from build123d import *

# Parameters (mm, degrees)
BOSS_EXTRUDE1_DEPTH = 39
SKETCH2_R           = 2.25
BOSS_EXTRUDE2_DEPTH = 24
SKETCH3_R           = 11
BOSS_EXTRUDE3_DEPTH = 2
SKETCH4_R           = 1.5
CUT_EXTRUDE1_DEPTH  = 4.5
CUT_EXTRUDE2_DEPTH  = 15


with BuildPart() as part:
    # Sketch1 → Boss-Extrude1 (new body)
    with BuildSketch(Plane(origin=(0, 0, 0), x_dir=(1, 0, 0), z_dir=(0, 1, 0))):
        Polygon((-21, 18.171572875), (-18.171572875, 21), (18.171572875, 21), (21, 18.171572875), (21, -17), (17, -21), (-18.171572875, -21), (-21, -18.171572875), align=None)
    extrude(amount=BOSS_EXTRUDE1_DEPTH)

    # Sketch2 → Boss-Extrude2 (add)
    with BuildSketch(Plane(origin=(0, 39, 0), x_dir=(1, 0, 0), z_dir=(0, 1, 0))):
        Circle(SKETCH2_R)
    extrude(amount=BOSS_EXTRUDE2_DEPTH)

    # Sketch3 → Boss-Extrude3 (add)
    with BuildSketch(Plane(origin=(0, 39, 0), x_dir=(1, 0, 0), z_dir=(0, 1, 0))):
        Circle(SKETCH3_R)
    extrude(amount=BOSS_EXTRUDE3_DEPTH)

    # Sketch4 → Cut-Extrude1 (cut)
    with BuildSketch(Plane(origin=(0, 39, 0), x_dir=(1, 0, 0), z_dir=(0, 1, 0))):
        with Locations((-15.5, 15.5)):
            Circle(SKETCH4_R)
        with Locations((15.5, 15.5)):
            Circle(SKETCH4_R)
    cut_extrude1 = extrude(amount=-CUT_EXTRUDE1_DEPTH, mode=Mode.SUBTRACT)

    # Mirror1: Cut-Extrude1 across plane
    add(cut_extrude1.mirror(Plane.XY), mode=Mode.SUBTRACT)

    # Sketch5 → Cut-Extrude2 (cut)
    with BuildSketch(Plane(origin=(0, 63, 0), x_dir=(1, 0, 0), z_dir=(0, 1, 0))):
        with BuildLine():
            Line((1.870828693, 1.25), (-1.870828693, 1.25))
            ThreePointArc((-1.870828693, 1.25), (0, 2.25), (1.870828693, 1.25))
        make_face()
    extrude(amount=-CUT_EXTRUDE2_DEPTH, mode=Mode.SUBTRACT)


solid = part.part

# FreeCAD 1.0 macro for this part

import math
import FreeCAD as App
import Part
import Sketcher


def add_polygon(sketch, points):
    """Adds a closed chain of lines whose ends are joined by coincident constraints."""
    first, n = sketch.GeometryCount, len(points)
    for a, b in zip(points, points[1:] + points[:1]):
        sketch.addGeometry(Part.LineSegment(App.Vector(*a, 0), App.Vector(*b, 0)), False)
    for i in range(n):
        sketch.addConstraint(Sketcher.Constraint("Coincident", first + i, 2, first + (i + 1) % n, 1))

doc = App.newDocument("Part")
body = doc.addObject("PartDesign::Body", "Body")

sketch1 = doc.addObject("Sketcher::SketchObject", "Sketch")
body.addObject(sketch1)
sketch1.AttachmentSupport = (doc.XZ_Plane, [""])
sketch1.MapMode = "FlatFace"
add_polygon(sketch1, [(-18.2, -21), (-21, -18.2), (-21, 18.2), (-18.2, 21), (17, 21), (21, 17), (21, -18.2), (18.2, -21)])
sketch1.addConstraint(Sketcher.Constraint("Vertical", 1))
sketch1.addConstraint(Sketcher.Constraint("Horizontal", 3))
sketch1.addConstraint(Sketcher.Constraint("Vertical", 5))
sketch1.addConstraint(Sketcher.Constraint("Horizontal", 7))
sketch1.addConstraint(Sketcher.Constraint("Symmetric", 1, 2, 5, 2, -1, 1))
sketch1.addConstraint(Sketcher.Constraint("Symmetric", 2, 2, 6, 2, -1, 1))
sketch1.addConstraint(Sketcher.Constraint("Perpendicular", 0, 2))
sketch1.addConstraint(Sketcher.Constraint("Perpendicular", 2, 4))
sketch1.addConstraint(Sketcher.Constraint("Horizontal", 0, 2, 5, 2))
sketch1.addConstraint(Sketcher.Constraint("Vertical", 2, 2, 7, 2))
sketch1.addConstraint(Sketcher.Constraint("Equal", 7, 1))
sketch1.addConstraint(Sketcher.Constraint("Distance", 0, 4.0))
sketch1.addConstraint(Sketcher.Constraint("DistanceX", 0, 2, -1, 1, 21.0))
sketch1.addConstraint(Sketcher.Constraint("DistanceX", -1, 1, 3, 2, 17.0))
pad1 = doc.addObject("PartDesign::Pad", "Pad")
body.addObject(pad1)
pad1.Profile = sketch1
pad1.Length = 39
pad1.Reversed = True

sketch2 = doc.addObject("Sketcher::SketchObject", "Sketch001")
body.addObject(sketch2)
sketch2.AttachmentSupport = (doc.XZ_Plane, [""])
sketch2.MapMode = "FlatFace"
sketch2.AttachmentOffset = App.Placement(App.Vector(0, 0, -39), App.Rotation())
sketch2.addGeometry(Part.Circle(App.Vector(0, 0, 0), App.Vector(0, 0, 1), 2.2), False)
sketch2.addConstraint(Sketcher.Constraint("Coincident", 0, 3, -1, 1))
sketch2.addConstraint(Sketcher.Constraint("Diameter", 0, 4.5))
pad2 = doc.addObject("PartDesign::Pad", "Pad001")
body.addObject(pad2)
pad2.Profile = sketch2
pad2.Length = 24
pad2.Reversed = True

sketch3 = doc.addObject("Sketcher::SketchObject", "Sketch002")
body.addObject(sketch3)
sketch3.AttachmentSupport = (doc.XZ_Plane, [""])
sketch3.MapMode = "FlatFace"
sketch3.AttachmentOffset = App.Placement(App.Vector(0, 0, -39), App.Rotation())
sketch3.addGeometry(Part.Circle(App.Vector(0, 0, 0), App.Vector(0, 0, 1), 11), False)
sketch3.addConstraint(Sketcher.Constraint("Coincident", 0, 3, -1, 1))
sketch3.addConstraint(Sketcher.Constraint("Diameter", 0, 22.0))
pad3 = doc.addObject("PartDesign::Pad", "Pad002")
body.addObject(pad3)
pad3.Profile = sketch3
pad3.Length = 2
pad3.Reversed = True

sketch4 = doc.addObject("Sketcher::SketchObject", "Sketch003")
body.addObject(sketch4)
sketch4.AttachmentSupport = (doc.XZ_Plane, [""])
sketch4.MapMode = "FlatFace"
sketch4.AttachmentOffset = App.Placement(App.Vector(0, 0, -39), App.Rotation())
sketch4.addGeometry(Part.Circle(App.Vector(-15.5, -15.5, 0), App.Vector(0, 0, 1), 1.5), False)
sketch4.addGeometry(Part.Circle(App.Vector(15.5, -15.5, 0), App.Vector(0, 0, 1), 1.5), False)
sketch4.addConstraint(Sketcher.Constraint("Equal", 0, 1))
sketch4.addConstraint(Sketcher.Constraint("Symmetric", 0, 3, 1, 3, -2))
sketch4.addConstraint(Sketcher.Constraint("Diameter", 0, 3.0))
sketch4.addConstraint(Sketcher.Constraint("DistanceX", 0, 3, 1, 3, 31.0))
sketch4.addConstraint(Sketcher.Constraint("DistanceY", 0, 3, -1, 1, 15.5))
pocket1 = doc.addObject("PartDesign::Pocket", "Pocket")
body.addObject(pocket1)
pocket1.Profile = sketch4
pocket1.Length = 4.5
pocket1.Reversed = True
doc.recompute()

mirrored = doc.addObject("PartDesign::Mirrored", "Mirrored")
body.addObject(mirrored)
mirrored.Originals = [pocket1]
mirrored.MirrorPlane = (doc.XY_Plane, [""])
body.Tip = mirrored

sketch5 = doc.addObject("Sketcher::SketchObject", "Sketch004")
body.addObject(sketch5)
sketch5.AttachmentSupport = (doc.XZ_Plane, [""])
sketch5.MapMode = "FlatFace"
sketch5.AttachmentOffset = App.Placement(App.Vector(0, 0, -63), App.Rotation())
sketch5.addGeometry(Part.LineSegment(App.Vector(-1.9, -1.2, 0), App.Vector(1.9, -1.2, 0)), False)
sketch5.addGeometry(Part.ArcOfCircle(Part.Circle(App.Vector(0, 0, 0), App.Vector(0, 0, 1), 2.2), math.radians(-146), math.radians(-34)), False)
sketch5.addConstraint(Sketcher.Constraint("Coincident", 0, 1, 1, 1))
sketch5.addConstraint(Sketcher.Constraint("Coincident", 1, 2, 0, 2))
sketch5.addConstraint(Sketcher.Constraint("Horizontal", 0))
sketch5.addConstraint(Sketcher.Constraint("Coincident", 1, 3, -1, 1))
sketch5.addConstraint(Sketcher.Constraint("Radius", 1, 2.25))
sketch5.addConstraint(Sketcher.Constraint("DistanceY", 0, 1, -1, 1, 1.25))
pocket2 = doc.addObject("PartDesign::Pocket", "Pocket001")
body.addObject(pocket2)
pocket2.Profile = sketch5
pocket2.Length = 15
pocket2.Reversed = True

doc.recompute()
